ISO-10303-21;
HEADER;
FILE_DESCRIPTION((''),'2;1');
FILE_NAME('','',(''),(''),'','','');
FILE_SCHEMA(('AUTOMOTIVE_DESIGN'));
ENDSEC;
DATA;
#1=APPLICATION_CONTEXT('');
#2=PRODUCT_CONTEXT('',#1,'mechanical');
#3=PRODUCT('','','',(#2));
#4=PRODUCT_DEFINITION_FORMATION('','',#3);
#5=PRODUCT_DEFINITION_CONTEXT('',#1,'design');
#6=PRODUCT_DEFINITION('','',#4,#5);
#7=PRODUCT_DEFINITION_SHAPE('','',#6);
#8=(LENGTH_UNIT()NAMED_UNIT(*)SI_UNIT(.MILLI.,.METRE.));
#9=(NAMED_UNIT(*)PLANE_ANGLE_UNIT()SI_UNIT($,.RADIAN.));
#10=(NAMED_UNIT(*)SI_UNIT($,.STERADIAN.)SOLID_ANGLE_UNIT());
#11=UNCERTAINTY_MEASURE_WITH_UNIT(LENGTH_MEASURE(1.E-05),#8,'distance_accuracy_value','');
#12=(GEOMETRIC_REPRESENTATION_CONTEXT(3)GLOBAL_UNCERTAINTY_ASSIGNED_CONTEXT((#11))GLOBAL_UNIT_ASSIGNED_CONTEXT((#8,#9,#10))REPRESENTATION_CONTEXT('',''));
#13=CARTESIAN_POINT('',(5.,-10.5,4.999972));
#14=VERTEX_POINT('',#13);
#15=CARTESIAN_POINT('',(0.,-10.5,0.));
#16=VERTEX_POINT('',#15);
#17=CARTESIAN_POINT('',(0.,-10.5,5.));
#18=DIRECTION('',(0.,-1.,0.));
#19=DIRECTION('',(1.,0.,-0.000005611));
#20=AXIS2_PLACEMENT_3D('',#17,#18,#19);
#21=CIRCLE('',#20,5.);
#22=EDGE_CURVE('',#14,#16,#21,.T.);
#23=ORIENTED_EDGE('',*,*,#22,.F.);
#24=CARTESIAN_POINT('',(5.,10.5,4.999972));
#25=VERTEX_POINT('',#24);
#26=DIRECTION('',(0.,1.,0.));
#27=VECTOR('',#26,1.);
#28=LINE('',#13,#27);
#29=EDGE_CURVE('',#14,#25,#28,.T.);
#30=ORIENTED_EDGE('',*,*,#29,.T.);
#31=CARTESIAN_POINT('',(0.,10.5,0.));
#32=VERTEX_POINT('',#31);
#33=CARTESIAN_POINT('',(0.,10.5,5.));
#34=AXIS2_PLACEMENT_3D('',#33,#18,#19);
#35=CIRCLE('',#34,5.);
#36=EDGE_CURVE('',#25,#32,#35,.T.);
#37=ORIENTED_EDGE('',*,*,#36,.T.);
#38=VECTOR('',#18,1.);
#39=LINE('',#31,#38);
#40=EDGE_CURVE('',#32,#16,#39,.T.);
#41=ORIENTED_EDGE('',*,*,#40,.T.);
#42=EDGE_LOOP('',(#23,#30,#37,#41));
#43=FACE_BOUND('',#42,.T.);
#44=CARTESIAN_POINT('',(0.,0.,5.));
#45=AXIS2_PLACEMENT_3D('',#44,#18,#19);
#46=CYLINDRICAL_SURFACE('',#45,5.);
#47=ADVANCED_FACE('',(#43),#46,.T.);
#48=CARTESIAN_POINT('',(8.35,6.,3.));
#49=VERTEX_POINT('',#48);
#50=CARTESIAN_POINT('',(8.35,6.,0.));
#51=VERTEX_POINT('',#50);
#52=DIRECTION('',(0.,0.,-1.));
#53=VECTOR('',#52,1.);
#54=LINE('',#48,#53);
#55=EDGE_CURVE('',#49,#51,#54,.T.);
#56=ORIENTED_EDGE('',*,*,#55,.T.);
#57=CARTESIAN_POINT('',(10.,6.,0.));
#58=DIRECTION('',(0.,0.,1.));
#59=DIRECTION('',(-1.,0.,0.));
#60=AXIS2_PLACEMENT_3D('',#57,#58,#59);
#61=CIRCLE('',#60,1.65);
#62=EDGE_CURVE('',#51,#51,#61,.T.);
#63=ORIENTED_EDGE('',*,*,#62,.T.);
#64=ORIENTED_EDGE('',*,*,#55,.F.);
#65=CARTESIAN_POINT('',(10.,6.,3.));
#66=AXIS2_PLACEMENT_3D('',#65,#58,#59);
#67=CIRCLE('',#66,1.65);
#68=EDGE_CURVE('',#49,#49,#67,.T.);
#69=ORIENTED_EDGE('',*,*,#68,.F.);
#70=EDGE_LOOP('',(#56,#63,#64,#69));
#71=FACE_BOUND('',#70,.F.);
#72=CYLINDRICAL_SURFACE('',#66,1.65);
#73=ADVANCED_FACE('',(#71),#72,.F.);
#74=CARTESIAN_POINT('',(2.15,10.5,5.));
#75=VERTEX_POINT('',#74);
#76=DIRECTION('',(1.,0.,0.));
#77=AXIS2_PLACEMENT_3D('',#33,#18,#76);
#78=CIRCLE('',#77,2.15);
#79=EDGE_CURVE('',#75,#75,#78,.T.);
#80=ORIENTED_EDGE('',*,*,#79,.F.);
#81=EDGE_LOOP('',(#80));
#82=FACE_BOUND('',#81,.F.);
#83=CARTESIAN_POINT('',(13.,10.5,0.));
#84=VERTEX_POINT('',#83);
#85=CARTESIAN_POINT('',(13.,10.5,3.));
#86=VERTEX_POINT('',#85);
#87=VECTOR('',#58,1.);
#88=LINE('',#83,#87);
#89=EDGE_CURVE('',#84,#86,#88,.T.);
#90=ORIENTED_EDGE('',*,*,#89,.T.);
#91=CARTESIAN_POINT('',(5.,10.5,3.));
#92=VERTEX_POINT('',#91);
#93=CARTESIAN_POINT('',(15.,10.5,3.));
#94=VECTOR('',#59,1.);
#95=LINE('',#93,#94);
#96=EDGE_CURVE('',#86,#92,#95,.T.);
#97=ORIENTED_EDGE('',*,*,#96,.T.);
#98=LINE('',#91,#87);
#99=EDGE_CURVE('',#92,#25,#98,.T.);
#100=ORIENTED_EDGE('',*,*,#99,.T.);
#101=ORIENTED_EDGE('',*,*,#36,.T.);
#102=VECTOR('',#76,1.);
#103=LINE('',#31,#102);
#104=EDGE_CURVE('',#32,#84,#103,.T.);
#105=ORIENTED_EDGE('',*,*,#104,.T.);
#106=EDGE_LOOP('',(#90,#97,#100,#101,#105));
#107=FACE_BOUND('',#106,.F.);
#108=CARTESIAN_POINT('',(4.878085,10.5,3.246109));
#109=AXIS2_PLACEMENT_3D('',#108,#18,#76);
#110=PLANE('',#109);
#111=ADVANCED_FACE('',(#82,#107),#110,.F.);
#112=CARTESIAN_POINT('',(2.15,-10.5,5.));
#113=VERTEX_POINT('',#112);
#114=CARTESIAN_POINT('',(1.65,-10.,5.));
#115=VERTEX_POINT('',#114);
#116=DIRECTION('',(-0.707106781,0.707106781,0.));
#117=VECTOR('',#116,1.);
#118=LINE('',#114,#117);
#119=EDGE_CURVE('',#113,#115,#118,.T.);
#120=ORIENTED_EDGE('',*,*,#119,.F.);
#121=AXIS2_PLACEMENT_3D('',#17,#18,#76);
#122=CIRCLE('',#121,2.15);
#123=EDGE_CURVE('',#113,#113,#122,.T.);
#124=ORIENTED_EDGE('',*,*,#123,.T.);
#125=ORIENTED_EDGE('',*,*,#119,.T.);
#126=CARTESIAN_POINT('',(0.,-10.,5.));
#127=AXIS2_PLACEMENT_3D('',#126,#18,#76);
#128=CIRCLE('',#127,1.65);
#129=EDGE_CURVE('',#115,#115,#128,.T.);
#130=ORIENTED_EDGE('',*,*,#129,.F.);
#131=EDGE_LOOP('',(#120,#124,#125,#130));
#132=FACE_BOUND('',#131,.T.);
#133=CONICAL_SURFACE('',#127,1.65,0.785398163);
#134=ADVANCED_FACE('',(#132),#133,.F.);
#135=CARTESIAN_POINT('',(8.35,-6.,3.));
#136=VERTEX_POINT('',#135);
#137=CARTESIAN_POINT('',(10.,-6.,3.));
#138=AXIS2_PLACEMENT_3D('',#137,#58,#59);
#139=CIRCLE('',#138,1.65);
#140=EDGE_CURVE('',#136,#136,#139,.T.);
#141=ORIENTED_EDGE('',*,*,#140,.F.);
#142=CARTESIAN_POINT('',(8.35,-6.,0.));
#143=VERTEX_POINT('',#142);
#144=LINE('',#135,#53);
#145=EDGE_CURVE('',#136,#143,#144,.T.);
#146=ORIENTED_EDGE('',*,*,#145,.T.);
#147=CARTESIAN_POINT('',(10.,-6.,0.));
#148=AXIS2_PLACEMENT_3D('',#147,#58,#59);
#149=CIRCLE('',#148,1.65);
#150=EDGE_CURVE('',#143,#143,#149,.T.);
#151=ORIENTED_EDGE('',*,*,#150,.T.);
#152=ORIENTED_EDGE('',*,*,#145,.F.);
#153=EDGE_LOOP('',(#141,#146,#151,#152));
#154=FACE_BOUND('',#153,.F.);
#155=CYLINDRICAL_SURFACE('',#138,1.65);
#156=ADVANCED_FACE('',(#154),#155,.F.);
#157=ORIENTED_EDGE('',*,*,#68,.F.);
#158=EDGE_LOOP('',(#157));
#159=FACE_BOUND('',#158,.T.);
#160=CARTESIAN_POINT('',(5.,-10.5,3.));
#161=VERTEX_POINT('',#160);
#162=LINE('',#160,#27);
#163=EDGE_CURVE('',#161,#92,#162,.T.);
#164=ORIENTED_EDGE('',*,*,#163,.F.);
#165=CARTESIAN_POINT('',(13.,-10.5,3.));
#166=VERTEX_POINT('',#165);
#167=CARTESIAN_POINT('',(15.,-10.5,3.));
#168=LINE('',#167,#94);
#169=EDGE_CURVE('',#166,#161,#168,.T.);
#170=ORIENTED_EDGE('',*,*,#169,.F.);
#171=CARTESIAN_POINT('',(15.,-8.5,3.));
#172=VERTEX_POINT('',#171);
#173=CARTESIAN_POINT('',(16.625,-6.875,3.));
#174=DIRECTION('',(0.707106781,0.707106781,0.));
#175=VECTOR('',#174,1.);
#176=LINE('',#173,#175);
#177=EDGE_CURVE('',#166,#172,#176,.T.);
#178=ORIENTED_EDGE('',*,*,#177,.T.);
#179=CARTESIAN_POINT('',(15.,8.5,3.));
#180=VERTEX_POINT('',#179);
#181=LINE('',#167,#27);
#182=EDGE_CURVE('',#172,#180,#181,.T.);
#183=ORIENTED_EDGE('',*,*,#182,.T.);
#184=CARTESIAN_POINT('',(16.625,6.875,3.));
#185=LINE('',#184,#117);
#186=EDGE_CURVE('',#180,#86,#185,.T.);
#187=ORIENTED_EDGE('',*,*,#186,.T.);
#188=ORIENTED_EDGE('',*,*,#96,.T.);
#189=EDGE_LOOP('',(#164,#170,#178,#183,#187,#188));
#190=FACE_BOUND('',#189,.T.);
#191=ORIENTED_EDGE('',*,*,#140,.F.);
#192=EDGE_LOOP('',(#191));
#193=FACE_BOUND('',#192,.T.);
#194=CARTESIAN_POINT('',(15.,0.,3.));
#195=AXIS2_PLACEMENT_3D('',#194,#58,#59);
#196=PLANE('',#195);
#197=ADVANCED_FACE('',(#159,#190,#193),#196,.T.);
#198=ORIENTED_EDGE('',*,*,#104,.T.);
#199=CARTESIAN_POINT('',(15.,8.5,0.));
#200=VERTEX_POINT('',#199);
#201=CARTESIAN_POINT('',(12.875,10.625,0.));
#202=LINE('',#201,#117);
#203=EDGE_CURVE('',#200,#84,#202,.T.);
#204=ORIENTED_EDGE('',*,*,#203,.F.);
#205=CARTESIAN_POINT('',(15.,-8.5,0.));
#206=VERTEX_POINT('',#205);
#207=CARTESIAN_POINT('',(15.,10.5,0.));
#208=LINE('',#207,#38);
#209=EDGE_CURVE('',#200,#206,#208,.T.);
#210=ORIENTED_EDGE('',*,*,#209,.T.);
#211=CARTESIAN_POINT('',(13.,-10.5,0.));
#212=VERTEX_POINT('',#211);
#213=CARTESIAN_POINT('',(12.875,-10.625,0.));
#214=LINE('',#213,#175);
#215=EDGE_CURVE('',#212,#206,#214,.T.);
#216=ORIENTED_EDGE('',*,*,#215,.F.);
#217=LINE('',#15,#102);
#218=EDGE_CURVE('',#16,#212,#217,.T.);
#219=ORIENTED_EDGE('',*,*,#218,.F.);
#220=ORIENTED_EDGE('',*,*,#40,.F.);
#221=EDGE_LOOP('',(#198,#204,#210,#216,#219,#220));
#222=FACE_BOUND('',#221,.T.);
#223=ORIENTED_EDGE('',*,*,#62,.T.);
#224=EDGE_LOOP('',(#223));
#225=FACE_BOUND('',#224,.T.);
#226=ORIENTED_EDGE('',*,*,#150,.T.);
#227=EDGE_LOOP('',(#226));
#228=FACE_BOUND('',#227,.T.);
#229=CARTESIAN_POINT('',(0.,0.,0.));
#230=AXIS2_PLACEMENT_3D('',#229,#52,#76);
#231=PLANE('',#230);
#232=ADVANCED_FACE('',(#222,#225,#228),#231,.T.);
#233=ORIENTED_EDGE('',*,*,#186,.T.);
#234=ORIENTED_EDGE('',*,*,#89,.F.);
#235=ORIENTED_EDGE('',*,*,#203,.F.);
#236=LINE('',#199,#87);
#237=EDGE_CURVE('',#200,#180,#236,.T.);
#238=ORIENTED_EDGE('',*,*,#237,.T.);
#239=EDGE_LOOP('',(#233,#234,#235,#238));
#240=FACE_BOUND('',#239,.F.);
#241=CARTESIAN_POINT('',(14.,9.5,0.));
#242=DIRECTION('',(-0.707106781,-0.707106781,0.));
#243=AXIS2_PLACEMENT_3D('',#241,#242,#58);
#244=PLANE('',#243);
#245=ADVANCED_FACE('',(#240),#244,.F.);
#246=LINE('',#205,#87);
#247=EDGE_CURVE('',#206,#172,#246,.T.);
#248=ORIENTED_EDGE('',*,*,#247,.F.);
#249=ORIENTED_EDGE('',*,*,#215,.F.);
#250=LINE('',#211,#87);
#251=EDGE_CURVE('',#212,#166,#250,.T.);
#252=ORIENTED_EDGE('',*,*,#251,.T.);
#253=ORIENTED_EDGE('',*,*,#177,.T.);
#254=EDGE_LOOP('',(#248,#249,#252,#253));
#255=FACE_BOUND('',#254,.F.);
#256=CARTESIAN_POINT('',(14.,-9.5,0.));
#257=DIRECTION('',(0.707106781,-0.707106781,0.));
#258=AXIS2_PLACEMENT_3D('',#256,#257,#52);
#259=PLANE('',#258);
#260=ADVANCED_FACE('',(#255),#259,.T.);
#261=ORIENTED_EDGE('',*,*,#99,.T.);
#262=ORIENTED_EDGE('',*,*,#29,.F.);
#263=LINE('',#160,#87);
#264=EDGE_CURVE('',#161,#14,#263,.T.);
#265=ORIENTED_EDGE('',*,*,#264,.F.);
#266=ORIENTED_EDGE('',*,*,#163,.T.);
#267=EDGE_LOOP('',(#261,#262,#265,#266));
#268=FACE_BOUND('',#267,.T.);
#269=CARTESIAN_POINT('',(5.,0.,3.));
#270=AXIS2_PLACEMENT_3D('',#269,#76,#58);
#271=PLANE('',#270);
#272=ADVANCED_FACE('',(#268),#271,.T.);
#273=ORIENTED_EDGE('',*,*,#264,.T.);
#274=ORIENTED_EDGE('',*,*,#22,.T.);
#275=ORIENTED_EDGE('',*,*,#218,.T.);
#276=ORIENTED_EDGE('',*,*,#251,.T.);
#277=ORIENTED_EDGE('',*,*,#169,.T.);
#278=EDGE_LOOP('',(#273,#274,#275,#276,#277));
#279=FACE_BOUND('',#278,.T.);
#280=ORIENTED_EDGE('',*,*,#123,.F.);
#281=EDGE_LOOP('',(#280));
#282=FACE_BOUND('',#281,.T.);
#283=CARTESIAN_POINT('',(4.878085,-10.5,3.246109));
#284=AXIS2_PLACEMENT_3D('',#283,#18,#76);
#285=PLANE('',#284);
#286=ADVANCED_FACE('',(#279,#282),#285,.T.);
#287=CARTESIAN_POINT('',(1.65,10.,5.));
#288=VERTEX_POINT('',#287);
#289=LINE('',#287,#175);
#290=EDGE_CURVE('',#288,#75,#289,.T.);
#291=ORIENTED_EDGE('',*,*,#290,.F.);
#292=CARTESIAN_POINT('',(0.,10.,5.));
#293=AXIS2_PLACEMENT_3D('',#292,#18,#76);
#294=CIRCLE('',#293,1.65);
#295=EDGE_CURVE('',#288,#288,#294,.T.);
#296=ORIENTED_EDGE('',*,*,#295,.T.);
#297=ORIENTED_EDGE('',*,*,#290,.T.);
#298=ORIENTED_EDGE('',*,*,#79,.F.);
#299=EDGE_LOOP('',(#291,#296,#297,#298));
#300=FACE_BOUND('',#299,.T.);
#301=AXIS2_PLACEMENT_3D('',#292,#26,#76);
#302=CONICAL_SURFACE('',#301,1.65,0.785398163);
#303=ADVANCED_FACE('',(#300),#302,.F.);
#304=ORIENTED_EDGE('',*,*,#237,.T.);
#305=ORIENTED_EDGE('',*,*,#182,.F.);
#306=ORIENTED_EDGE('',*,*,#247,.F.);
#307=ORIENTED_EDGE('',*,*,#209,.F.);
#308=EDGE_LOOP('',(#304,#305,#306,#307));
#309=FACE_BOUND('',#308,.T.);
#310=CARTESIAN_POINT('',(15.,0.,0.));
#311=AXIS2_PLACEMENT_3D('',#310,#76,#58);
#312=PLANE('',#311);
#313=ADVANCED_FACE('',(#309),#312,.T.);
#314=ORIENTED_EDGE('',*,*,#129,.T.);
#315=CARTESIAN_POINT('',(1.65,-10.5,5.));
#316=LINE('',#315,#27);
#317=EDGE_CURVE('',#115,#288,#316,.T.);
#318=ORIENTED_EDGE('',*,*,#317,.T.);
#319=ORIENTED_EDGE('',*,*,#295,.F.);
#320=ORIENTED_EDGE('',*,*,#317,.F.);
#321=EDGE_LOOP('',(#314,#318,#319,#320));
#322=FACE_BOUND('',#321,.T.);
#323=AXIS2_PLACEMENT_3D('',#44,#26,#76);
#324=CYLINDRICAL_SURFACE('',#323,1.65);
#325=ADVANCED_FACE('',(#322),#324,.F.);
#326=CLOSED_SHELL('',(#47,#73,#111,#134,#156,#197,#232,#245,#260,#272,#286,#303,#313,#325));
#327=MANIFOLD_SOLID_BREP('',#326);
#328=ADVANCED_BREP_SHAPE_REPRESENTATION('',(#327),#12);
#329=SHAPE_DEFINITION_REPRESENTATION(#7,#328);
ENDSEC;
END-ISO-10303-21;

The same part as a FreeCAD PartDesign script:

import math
import FreeCAD as App
import Part
import Sketcher
from FreeCAD import Vector
Q = App.Units.Quantity


def edges_at(feature, points):
    """Names of the edges that pass closest to the given points."""
    edges = feature.Shape.Edges
    near = lambda p: min(range(len(edges)), key=lambda i: edges[i].distToShape(Part.Vertex(*p))[0])
    return sorted({f"Edge{near(p) + 1}" for p in points})

doc = App.newDocument("Part")
body = doc.addObject("PartDesign::Body", "Body")

# Sketch on XZ plane
sketch1 = doc.addObject("Sketcher::SketchObject", "Sketch")
body.addObject(sketch1)
sketch1.AttachmentSupport = (doc.XZ_Plane, [""])
sketch1.MapMode = "FlatFace"
sketch1.addGeometry(Part.ArcOfCircle(Part.Circle(Vector(0, 5, 0), Vector(0, 0, 1), 5), math.radians(-0.000321), math.radians(270.000001)), False)
sketch1.addGeometry(Part.LineSegment(Vector(0, 0, 0), Vector(15, 0, 0)), False)
sketch1.addGeometry(Part.LineSegment(Vector(15, 0, 0), Vector(15, 3, 0)), False)
sketch1.addGeometry(Part.LineSegment(Vector(15, 3, 0), Vector(5, 3, 0)), False)
sketch1.addGeometry(Part.LineSegment(Vector(5, 3, 0), Vector(5, 4.999972, 0)), False)
sketch1.addGeometry(Part.Circle(Vector(0, 5, 0), Vector(0, 0, 1), 1.65), False)
sketch1.addConstraint(Sketcher.Constraint("Tangent", 0, 2, 1, 1))
sketch1.addConstraint(Sketcher.Constraint("Coincident", 1, 2, 2, 1))
sketch1.addConstraint(Sketcher.Constraint("Coincident", 2, 2, 3, 1))
sketch1.addConstraint(Sketcher.Constraint("Coincident", 3, 2, 4, 1))
sketch1.addConstraint(Sketcher.Constraint("Coincident", 4, 2, 0, 1))
sketch1.addConstraint(Sketcher.Constraint("Horizontal", 1))
sketch1.addConstraint(Sketcher.Constraint("Vertical", 2))
sketch1.addConstraint(Sketcher.Constraint("Horizontal", 3))
sketch1.addConstraint(Sketcher.Constraint("Vertical", 4))
sketch1.addConstraint(Sketcher.Constraint("Coincident", 0, 2, -1, 1))
sketch1.addConstraint(Sketcher.Constraint("Coincident", 5, 3, 0, 3))
sketch1.addConstraint(Sketcher.Constraint("Radius", 0, Q("5 mm")))
sketch1.addConstraint(Sketcher.Constraint("Diameter", 5, Q("3.3 mm")))
sketch1.addConstraint(Sketcher.Constraint("DistanceX", 1, 1, 1, 2, Q("15 mm")))
sketch1.addConstraint(Sketcher.Constraint("DistanceY", 2, 1, 2, 2, Q("3 mm")))
sketch1.addConstraint(Sketcher.Constraint("DistanceY", 4, 1, 4, 2, Q("1.999972 mm")))
pad1 = doc.addObject("PartDesign::Pad", "Pad")
body.addObject(pad1)
pad1.Profile = sketch1
pad1.Length = 21
pad1.Midplane = True
doc.recompute()

chamfer = doc.addObject("PartDesign::Chamfer", "Chamfer")
body.addObject(chamfer)
chamfer.Base = (pad1, edges_at(pad1, [(-1.65, -10.5, 5), (-1.65, 10.5, 5)]))
chamfer.Size = 0.5
doc.recompute()

chamfer2 = doc.addObject("PartDesign::Chamfer", "Chamfer001")
body.addObject(chamfer2)
chamfer2.Base = (chamfer, edges_at(chamfer, [(15, 10.5, 1.5), (15, -10.5, 1.5)]))
chamfer2.Size = 2

# Sketch on XY plane
sketch2 = doc.addObject("Sketcher::SketchObject", "Sketch001")
body.addObject(sketch2)
sketch2.AttachmentSupport = (doc.XY_Plane, [""])
sketch2.MapMode = "FlatFace"
sketch2.AttachmentOffset = App.Placement(Vector(0, 0, 3), App.Rotation())
sketch2.addGeometry(Part.Circle(Vector(10, -6, 0), Vector(0, 0, 1), 1.65), False)
sketch2.addGeometry(Part.Circle(Vector(10, 6, 0), Vector(0, 0, 1), 1.65), False)
sketch2.addConstraint(Sketcher.Constraint("Equal", 0, 1))
sketch2.addConstraint(Sketcher.Constraint("Symmetric", 0, 3, 1, 3, -1))
sketch2.addConstraint(Sketcher.Constraint("Diameter", 0, Q("3.3 mm")))
sketch2.addConstraint(Sketcher.Constraint("DistanceX", -1, 1, 0, 3, Q("10 mm")))
sketch2.addConstraint(Sketcher.Constraint("DistanceY", 0, 3, -1, 1, Q("6 mm")))
pocket1 = doc.addObject("PartDesign::Pocket", "Pocket")
body.addObject(pocket1)
pocket1.Profile = sketch2
pocket1.Type = "ThroughAll"

doc.recompute()
